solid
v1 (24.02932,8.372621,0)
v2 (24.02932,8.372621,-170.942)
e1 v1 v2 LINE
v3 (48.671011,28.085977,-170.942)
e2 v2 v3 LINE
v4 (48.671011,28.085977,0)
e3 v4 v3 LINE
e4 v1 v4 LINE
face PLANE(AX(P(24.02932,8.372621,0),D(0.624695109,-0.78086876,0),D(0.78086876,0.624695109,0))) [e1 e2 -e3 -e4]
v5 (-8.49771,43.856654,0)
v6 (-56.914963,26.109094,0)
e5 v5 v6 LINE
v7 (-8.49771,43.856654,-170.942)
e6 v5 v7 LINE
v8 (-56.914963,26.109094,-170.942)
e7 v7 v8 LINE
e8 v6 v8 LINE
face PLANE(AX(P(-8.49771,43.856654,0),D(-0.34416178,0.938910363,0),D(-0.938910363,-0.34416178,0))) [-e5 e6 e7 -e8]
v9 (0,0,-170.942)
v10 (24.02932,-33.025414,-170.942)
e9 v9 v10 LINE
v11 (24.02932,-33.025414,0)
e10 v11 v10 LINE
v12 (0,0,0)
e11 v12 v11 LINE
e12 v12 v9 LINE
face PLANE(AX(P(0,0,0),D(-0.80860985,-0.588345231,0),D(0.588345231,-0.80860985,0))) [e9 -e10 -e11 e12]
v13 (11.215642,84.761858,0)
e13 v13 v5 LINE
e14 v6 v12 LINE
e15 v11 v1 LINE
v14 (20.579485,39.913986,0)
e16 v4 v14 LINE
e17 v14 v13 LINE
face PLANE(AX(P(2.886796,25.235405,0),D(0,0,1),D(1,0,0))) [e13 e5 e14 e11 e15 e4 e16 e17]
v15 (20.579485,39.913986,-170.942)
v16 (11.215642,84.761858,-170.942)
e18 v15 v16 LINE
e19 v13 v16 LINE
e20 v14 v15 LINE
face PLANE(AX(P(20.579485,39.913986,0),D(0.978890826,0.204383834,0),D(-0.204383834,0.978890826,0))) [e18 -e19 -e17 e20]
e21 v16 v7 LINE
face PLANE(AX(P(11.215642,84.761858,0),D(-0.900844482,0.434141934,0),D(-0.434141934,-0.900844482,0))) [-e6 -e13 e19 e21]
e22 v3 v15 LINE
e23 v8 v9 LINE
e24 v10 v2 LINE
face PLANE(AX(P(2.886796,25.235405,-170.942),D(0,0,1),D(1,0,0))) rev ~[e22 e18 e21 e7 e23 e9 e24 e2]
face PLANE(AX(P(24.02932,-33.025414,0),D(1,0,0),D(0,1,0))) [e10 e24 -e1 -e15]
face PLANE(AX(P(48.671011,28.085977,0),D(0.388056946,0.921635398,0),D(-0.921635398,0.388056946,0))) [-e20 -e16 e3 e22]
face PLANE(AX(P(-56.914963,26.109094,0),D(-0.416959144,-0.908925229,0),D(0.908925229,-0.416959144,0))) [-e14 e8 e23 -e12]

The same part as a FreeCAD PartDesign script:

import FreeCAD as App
import Part
import Sketcher
from FreeCAD import Vector
Q = App.Units.Quantity


def add_polygon(sketch, points):
    """Adds a closed chain of lines whose ends are joined by coincident constraints."""
    first, n = sketch.GeometryCount, len(points)
    for a, b in zip(points, points[1:] + points[:1]):
        sketch.addGeometry(Part.LineSegment(App.Vector(*a, 0), App.Vector(*b, 0)), False)
    for i in range(n):
        sketch.addConstraint(Sketcher.Constraint("Coincident", first + i, 2, first + (i + 1) % n, 1))

doc = App.newDocument("Part")
body = doc.addObject("PartDesign::Body", "Body")

sketch1 = body.newObject("Sketcher::SketchObject", "Sketch")
sketch1.AttachmentSupport = (doc.getObject("XY_Plane"), [""])
sketch1.MapMode = "FlatFace"
add_polygon(sketch1, [(-57, 26), (0, 0), (24, -33), (24, 8), (49, 28), (21, 40), (11, 85), (-8, 44)])
sketch1.addConstraint([
    Sketcher.Constraint("Vertical", 2),
    Sketcher.Constraint("Coincident", 0, 2, -1, 1),
    Sketcher.Constraint("DistanceY", 1, 2, 4, 2, Q("72.9394 mm")),
    Sketcher.Constraint("Distance", 0, Q("62.617871 mm")),
    Sketcher.Constraint("Distance", 1, Q("40.842211 mm")),
    Sketcher.Constraint("Distance", 5, Q("45.814989 mm")),
    Sketcher.Constraint("Distance", 6, Q("45.40762 mm")),
    Sketcher.Constraint("DistanceY", 2, 1, 2, 2, Q("41.398035 mm")),
    Sketcher.Constraint("DistanceX", -1, 1, 1, 2, Q("24.02932 mm")),
    Sketcher.Constraint("DistanceX", -1, 1, 3, 2, Q("48.671011 mm")),
    Sketcher.Constraint("DistanceY", -1, 1, 5, 2, Q("84.761858 mm")),
    Sketcher.Constraint("DistanceX", 6, 2, -1, 1, Q("8.49771 mm")),
    Sketcher.Constraint("DistanceY", 1, 2, 3, 2, Q("61.111391 mm")),
    Sketcher.Constraint("DistanceX", 5, 2, 3, 2, Q("37.455369 mm")),
    Sketcher.Constraint("DistanceY", 7, 2, 6, 2, Q("17.74756 mm")),
])
pad1 = body.newObject("PartDesign::Pad", "Pad")
pad1.Profile = sketch1
pad1.Length = Q("6.73 in")
pad1.Reversed = True

doc.recompute()
